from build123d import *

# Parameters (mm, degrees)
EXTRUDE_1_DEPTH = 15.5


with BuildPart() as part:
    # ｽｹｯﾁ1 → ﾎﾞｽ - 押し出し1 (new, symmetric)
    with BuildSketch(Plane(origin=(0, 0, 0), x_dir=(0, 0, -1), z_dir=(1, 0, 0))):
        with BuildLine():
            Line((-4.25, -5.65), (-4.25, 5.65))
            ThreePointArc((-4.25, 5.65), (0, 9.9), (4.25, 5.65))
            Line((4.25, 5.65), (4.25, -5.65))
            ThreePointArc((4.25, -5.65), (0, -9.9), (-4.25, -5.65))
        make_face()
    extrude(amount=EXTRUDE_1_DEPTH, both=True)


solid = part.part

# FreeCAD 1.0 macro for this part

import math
import FreeCAD as App
import Part
import Sketcher
from FreeCAD import Vector

doc = App.newDocument("Part")
params = doc.addObject("Spreadsheet::Sheet", "Params")
for row, (alias, value) in enumerate([
    ("sketch1_radius", "4.25 mm"),
    ("sketch1_width", "11.3 mm"),
    ("pad1_length", "31 mm"),
], start=1):
    params.set(f"A{row}", alias)
    params.set(f"B{row}", "=" + value)
    params.setAlias(f"B{row}", alias)

body = doc.addObject("PartDesign::Body", "Body")

# Sketch on YZ plane
sketch1 = doc.addObject("Sketcher::SketchObject", "Sketch")
body.addObject(sketch1)
sketch1.AttachmentSupport = (doc.YZ_Plane, [""])
sketch1.MapMode = "FlatFace"
sketch1.addGeometry(Part.LineSegment(Vector(5.65, 4.25, 0), Vector(-5.65, 4.25, 0)), False)
sketch1.addGeometry(Part.ArcOfCircle(Part.Circle(Vector(-5.65, 0, 0), Vector(0, 0, 1), 4.25), math.radians(90), math.radians(270)), False)
sketch1.addGeometry(Part.LineSegment(Vector(-5.65, -4.25, 0), Vector(5.65, -4.25, 0)), False)
sketch1.addGeometry(Part.ArcOfCircle(Part.Circle(Vector(5.65, 0, 0), Vector(0, 0, 1), 4.25), math.radians(-90), math.radians(90)), False)
sketch1.addConstraint(Sketcher.Constraint("Tangent", 0, 2, 1, 1))
sketch1.addConstraint(Sketcher.Constraint("Tangent", 1, 2, 2, 1))
sketch1.addConstraint(Sketcher.Constraint("Tangent", 2, 2, 3, 1))
sketch1.addConstraint(Sketcher.Constraint("Tangent", 3, 2, 0, 1))
sketch1.addConstraint(Sketcher.Constraint("Horizontal", 0))
sketch1.addConstraint(Sketcher.Constraint("Horizontal", 2))
sketch1.addConstraint(Sketcher.Constraint("Symmetric", 1, 3, 3, 3, -1, 1))
sketch1.addConstraint(Sketcher.Constraint("Radius", 1, 4.25))
sketch1.addConstraint(Sketcher.Constraint("DistanceX", 0, 2, 0, 1, 11.3))
sketch1.setExpression("Constraints[7]", "Params.sketch1_radius")
sketch1.setExpression("Constraints[8]", "Params.sketch1_width")
pad1 = doc.addObject("PartDesign::Pad", "Pad")
body.addObject(pad1)
pad1.Profile = sketch1
pad1.setExpression("Length", "Params.pad1_length")
pad1.Midplane = True

doc.recompute()
